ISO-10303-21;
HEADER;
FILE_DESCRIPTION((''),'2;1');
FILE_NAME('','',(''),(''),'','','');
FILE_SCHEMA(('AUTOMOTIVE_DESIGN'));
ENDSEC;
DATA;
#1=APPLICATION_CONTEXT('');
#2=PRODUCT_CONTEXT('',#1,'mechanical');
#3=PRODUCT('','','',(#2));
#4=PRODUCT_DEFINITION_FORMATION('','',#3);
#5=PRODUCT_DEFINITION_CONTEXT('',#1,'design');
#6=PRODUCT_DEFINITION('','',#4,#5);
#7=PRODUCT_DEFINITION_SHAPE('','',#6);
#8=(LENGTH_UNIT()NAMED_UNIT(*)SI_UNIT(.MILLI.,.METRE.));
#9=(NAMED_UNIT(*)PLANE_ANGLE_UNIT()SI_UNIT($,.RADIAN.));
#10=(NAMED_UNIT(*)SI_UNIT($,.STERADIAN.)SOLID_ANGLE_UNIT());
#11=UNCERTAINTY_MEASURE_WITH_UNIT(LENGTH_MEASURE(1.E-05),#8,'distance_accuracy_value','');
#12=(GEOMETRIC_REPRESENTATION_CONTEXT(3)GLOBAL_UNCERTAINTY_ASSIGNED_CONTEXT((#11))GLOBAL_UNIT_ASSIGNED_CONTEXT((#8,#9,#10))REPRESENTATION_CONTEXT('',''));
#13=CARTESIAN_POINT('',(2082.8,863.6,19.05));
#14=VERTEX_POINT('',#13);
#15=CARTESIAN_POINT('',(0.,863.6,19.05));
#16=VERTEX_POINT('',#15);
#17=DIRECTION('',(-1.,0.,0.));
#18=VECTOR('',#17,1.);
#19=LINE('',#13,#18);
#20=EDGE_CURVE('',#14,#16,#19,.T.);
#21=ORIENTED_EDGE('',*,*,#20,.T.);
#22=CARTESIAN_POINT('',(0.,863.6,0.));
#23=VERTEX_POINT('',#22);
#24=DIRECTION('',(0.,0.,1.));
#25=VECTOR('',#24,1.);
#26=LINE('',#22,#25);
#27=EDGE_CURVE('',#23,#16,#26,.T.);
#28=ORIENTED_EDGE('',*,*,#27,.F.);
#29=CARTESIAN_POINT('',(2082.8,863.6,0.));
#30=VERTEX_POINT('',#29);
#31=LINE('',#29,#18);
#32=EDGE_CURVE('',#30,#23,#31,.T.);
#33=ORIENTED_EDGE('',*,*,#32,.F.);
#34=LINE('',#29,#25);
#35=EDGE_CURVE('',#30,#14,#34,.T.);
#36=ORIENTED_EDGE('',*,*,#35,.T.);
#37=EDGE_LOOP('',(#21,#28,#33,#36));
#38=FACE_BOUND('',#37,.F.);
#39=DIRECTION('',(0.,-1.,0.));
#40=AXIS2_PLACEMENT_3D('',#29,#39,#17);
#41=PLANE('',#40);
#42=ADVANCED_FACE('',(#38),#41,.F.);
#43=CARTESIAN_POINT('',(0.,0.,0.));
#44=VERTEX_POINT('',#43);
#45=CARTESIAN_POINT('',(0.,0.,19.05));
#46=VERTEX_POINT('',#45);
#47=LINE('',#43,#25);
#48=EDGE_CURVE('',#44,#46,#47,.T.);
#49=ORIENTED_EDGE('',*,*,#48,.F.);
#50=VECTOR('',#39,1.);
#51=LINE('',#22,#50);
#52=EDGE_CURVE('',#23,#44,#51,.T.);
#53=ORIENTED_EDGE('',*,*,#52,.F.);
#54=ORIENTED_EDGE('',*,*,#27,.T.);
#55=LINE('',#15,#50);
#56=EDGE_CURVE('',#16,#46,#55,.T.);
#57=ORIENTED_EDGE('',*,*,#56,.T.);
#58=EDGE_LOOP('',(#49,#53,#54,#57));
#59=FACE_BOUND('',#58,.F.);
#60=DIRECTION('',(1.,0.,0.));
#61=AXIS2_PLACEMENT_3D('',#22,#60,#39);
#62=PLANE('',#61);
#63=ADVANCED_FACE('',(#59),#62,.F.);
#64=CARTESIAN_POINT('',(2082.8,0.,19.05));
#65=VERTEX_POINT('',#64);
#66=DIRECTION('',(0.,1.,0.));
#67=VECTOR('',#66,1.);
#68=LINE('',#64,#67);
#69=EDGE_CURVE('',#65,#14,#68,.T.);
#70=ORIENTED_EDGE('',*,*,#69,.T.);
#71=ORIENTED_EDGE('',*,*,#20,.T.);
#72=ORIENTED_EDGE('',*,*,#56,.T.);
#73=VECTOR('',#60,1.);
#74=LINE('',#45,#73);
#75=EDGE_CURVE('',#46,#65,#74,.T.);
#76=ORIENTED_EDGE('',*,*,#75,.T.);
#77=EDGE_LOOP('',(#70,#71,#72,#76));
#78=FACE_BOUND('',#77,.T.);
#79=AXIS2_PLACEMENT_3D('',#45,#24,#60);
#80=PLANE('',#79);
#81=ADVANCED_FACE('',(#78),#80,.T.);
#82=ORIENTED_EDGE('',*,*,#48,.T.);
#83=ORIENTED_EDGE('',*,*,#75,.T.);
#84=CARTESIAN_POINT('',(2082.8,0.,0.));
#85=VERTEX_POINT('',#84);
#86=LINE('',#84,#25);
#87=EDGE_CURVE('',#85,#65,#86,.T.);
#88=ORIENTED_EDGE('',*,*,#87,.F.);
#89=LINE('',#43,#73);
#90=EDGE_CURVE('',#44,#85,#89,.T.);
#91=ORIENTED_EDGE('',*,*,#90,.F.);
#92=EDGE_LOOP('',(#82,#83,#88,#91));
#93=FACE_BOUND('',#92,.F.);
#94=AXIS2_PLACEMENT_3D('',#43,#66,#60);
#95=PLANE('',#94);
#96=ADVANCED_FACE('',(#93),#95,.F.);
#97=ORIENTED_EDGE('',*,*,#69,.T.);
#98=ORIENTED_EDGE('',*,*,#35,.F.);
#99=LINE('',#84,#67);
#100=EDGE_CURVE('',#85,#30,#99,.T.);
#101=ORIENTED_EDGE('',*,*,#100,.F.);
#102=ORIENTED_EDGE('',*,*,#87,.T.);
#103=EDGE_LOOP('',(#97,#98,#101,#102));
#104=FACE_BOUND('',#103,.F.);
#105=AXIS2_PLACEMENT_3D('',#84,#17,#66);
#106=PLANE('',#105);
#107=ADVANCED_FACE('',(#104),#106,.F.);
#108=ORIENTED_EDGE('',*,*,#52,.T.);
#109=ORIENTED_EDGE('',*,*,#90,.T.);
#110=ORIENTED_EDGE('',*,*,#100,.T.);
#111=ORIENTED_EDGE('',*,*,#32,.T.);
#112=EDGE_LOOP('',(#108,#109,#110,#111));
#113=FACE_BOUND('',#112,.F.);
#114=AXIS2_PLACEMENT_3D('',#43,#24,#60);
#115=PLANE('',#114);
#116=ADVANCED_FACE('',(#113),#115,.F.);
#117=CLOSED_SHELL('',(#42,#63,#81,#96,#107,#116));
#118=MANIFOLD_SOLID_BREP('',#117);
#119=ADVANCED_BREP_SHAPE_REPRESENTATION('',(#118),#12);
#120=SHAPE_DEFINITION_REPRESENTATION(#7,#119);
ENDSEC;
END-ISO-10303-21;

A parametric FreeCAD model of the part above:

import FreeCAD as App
import Part
import Sketcher
Q = App.Units.Quantity

doc = App.newDocument("Part")
body = doc.addObject("PartDesign::Body", "Body")

# Sketch on XY plane
sketch1 = body.newObject("Sketcher::SketchObject", "Sketch")
sketch1.AttachmentSupport = (doc.getObject("XY_Plane"), [""])
sketch1.MapMode = "FlatFace"
sketch1.addGeometry([
    Part.LineSegment(App.Vector(0, 864, 0), App.Vector(0, 0, 0)),
    Part.LineSegment(App.Vector(0, 0, 0), App.Vector(2083, 0, 0)),
    Part.LineSegment(App.Vector(2083, 0, 0), App.Vector(2083, 864, 0)),
    Part.LineSegment(App.Vector(2083, 864, 0), App.Vector(0, 864, 0)),
], False)
sketch1.addConstraint([
    Sketcher.Constraint("Coincident", 0, 2, 1, 1),
    Sketcher.Constraint("Coincident", 1, 2, 2, 1),
    Sketcher.Constraint("Coincident", 2, 2, 3, 1),
    Sketcher.Constraint("Coincident", 3, 2, 0, 1),
    Sketcher.Constraint("Vertical", 0),
    Sketcher.Constraint("Horizontal", 1),
    Sketcher.Constraint("Vertical", 2),
    Sketcher.Constraint("Horizontal", 3),
    Sketcher.Constraint("Coincident", 0, 2, -1, 1),
    Sketcher.Constraint("DistanceX", 1, 1, 1, 2, Q("82 in")),
    Sketcher.Constraint("DistanceY", 0, 2, 0, 1, Q("34 in")),
])
pad1 = body.newObject("PartDesign::Pad", "Pad")
pad1.Profile = sketch1
pad1.Length = Q("0.75 in")

doc.recompute()
